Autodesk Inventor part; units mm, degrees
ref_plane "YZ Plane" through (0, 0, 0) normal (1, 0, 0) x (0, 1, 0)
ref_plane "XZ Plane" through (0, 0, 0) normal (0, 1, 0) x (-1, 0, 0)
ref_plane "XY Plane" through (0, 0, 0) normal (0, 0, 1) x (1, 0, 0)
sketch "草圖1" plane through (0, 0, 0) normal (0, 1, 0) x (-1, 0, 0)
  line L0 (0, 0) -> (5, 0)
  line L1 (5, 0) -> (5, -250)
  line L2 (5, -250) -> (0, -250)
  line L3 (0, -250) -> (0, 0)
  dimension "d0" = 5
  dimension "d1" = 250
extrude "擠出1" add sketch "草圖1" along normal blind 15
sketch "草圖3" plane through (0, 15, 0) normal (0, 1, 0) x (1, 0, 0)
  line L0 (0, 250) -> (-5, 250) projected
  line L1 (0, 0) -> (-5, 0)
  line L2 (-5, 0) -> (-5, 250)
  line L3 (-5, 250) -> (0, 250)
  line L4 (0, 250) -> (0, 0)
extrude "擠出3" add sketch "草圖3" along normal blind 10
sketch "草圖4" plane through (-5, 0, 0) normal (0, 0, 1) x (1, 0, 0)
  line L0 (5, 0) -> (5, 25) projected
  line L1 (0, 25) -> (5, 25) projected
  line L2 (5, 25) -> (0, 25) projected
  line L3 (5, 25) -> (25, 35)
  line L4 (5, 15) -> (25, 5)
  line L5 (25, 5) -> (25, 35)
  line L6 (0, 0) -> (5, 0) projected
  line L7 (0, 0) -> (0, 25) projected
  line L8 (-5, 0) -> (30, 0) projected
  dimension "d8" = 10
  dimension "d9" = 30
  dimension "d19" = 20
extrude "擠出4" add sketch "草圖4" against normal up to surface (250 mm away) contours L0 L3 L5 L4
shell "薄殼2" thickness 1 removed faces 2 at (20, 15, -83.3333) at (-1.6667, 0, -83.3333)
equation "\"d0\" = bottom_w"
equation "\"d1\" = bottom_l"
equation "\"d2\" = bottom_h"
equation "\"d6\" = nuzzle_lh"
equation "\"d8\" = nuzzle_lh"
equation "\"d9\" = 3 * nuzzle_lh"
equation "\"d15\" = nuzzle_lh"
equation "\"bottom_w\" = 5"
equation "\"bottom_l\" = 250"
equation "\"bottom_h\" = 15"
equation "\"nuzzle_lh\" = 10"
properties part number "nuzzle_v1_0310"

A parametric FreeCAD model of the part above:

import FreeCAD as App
import Part
import Sketcher
from FreeCAD import Vector
Q = App.Units.Quantity


def faces_at(feature, points):
    """Names of the faces that lie closest to the given points."""
    faces = feature.Shape.Faces
    near = lambda p: min(range(len(faces)), key=lambda i: faces[i].distToShape(Part.Vertex(*p))[0])
    return sorted({f"Face{near(p) + 1}" for p in points})

doc = App.newDocument("Part")
body = doc.addObject("PartDesign::Body", "Body")

sketch1 = body.newObject("Sketcher::SketchObject", "Sketch")
sketch1.AttachmentSupport = (doc.getObject("XZ_Plane"), [""])
sketch1.MapMode = "FlatFace"
sketch1.addGeometry([
    Part.LineSegment(Vector(-5, 0, 0), Vector(0, 0, 0)),
    Part.LineSegment(Vector(0, 0, 0), Vector(0, -250, 0)),
    Part.LineSegment(Vector(0, -250, 0), Vector(-5, -250, 0)),
    Part.LineSegment(Vector(-5, -250, 0), Vector(-5, 0, 0)),
], False)
sketch1.addConstraint([
    Sketcher.Constraint("Coincident", 0, 2, 1, 1),
    Sketcher.Constraint("Coincident", 1, 2, 2, 1),
    Sketcher.Constraint("Coincident", 2, 2, 3, 1),
    Sketcher.Constraint("Coincident", 3, 2, 0, 1),
    Sketcher.Constraint("Horizontal", 0),
    Sketcher.Constraint("Vertical", 1),
    Sketcher.Constraint("Horizontal", 2),
    Sketcher.Constraint("Vertical", 3),
    Sketcher.Constraint("Coincident", 0, 2, -1, 1),
    Sketcher.Constraint("DistanceX", 0, 1, 0, 2, Q("5 mm")),
    Sketcher.Constraint("DistanceY", 1, 2, 1, 1, Q("250 mm")),
])
pad1 = body.newObject("PartDesign::Pad", "Pad")
pad1.Profile = sketch1
pad1.Length = 15
pad1.Reversed = True

sketch2 = body.newObject("Sketcher::SketchObject", "Sketch001")
sketch2.AttachmentSupport = (doc.getObject("XZ_Plane"), [""])
sketch2.MapMode = "FlatFace"
sketch2.AttachmentOffset = App.Placement(Vector(0, 0, -15), App.Rotation())
sketch2.addGeometry([
    Part.LineSegment(Vector(0, 0, 0), Vector(0, -250, 0)),
    Part.LineSegment(Vector(0, -250, 0), Vector(-5, -250, 0)),
    Part.LineSegment(Vector(-5, -250, 0), Vector(-5, 0, 0)),
    Part.LineSegment(Vector(-5, 0, 0), Vector(0, 0, 0)),
], False)
sketch2.addConstraint([
    Sketcher.Constraint("Coincident", 0, 2, 1, 1),
    Sketcher.Constraint("Coincident", 1, 2, 2, 1),
    Sketcher.Constraint("Coincident", 2, 2, 3, 1),
    Sketcher.Constraint("Coincident", 3, 2, 0, 1),
    Sketcher.Constraint("Vertical", 0),
    Sketcher.Constraint("Horizontal", 1),
    Sketcher.Constraint("Vertical", 2),
    Sketcher.Constraint("Horizontal", 3),
    Sketcher.Constraint("Coincident", 3, 2, -1, 1),
    Sketcher.Constraint("DistanceX", 1, 2, 1, 1, Q("5 mm")),
    Sketcher.Constraint("DistanceY", 0, 2, 0, 1, Q("250 mm")),
])
pad2 = body.newObject("PartDesign::Pad", "Pad001")
pad2.Profile = sketch2
pad2.Length = 10
pad2.Reversed = True

sketch3 = body.newObject("Sketcher::SketchObject", "Sketch002")
sketch3.AttachmentSupport = (doc.getObject("XY_Plane"), [""])
sketch3.MapMode = "FlatFace"
sketch3.addGeometry([
    Part.LineSegment(Vector(0, 25, 0), Vector(0, 15, 0)),
    Part.LineSegment(Vector(0, 15, 0), Vector(20, 5, 0)),
    Part.LineSegment(Vector(20, 5, 0), Vector(20, 35, 0)),
    Part.LineSegment(Vector(20, 35, 0), Vector(0, 25, 0)),
], False)
sketch3.addConstraint([
    Sketcher.Constraint("Coincident", 0, 2, 1, 1),
    Sketcher.Constraint("Coincident", 1, 2, 2, 1),
    Sketcher.Constraint("Coincident", 2, 2, 3, 1),
    Sketcher.Constraint("Coincident", 3, 2, 0, 1),
    Sketcher.Constraint("Vertical", 0),
    Sketcher.Constraint("Vertical", 2),
    Sketcher.Constraint("PointOnObject", 0, 2, -2),
    Sketcher.Constraint("Equal", 1, 3),
    Sketcher.Constraint("DistanceY", 0, 2, 0, 1, Q("10 mm")),
    Sketcher.Constraint("DistanceY", 2, 1, 2, 2, Q("30 mm")),
    Sketcher.Constraint("DistanceX", -1, 1, 1, 2, Q("20 mm")),
    Sketcher.Constraint("DistanceY", -1, 1, 0, 2, Q("15 mm")),
])
pad3 = body.newObject("PartDesign::Pad", "Pad002")
pad3.Profile = sketch3
pad3.Length = 250
pad3.Reversed = True
doc.recompute()

thickness = body.newObject("PartDesign::Thickness", "Thickness")
thickness.Base = (pad3, faces_at(pad3, [(20, 15, -83.333), (-1.667, 0, -83.333)]))
thickness.Value = 1
thickness.Reversed = True
thickness.Join = "Intersection"

doc.recompute()
